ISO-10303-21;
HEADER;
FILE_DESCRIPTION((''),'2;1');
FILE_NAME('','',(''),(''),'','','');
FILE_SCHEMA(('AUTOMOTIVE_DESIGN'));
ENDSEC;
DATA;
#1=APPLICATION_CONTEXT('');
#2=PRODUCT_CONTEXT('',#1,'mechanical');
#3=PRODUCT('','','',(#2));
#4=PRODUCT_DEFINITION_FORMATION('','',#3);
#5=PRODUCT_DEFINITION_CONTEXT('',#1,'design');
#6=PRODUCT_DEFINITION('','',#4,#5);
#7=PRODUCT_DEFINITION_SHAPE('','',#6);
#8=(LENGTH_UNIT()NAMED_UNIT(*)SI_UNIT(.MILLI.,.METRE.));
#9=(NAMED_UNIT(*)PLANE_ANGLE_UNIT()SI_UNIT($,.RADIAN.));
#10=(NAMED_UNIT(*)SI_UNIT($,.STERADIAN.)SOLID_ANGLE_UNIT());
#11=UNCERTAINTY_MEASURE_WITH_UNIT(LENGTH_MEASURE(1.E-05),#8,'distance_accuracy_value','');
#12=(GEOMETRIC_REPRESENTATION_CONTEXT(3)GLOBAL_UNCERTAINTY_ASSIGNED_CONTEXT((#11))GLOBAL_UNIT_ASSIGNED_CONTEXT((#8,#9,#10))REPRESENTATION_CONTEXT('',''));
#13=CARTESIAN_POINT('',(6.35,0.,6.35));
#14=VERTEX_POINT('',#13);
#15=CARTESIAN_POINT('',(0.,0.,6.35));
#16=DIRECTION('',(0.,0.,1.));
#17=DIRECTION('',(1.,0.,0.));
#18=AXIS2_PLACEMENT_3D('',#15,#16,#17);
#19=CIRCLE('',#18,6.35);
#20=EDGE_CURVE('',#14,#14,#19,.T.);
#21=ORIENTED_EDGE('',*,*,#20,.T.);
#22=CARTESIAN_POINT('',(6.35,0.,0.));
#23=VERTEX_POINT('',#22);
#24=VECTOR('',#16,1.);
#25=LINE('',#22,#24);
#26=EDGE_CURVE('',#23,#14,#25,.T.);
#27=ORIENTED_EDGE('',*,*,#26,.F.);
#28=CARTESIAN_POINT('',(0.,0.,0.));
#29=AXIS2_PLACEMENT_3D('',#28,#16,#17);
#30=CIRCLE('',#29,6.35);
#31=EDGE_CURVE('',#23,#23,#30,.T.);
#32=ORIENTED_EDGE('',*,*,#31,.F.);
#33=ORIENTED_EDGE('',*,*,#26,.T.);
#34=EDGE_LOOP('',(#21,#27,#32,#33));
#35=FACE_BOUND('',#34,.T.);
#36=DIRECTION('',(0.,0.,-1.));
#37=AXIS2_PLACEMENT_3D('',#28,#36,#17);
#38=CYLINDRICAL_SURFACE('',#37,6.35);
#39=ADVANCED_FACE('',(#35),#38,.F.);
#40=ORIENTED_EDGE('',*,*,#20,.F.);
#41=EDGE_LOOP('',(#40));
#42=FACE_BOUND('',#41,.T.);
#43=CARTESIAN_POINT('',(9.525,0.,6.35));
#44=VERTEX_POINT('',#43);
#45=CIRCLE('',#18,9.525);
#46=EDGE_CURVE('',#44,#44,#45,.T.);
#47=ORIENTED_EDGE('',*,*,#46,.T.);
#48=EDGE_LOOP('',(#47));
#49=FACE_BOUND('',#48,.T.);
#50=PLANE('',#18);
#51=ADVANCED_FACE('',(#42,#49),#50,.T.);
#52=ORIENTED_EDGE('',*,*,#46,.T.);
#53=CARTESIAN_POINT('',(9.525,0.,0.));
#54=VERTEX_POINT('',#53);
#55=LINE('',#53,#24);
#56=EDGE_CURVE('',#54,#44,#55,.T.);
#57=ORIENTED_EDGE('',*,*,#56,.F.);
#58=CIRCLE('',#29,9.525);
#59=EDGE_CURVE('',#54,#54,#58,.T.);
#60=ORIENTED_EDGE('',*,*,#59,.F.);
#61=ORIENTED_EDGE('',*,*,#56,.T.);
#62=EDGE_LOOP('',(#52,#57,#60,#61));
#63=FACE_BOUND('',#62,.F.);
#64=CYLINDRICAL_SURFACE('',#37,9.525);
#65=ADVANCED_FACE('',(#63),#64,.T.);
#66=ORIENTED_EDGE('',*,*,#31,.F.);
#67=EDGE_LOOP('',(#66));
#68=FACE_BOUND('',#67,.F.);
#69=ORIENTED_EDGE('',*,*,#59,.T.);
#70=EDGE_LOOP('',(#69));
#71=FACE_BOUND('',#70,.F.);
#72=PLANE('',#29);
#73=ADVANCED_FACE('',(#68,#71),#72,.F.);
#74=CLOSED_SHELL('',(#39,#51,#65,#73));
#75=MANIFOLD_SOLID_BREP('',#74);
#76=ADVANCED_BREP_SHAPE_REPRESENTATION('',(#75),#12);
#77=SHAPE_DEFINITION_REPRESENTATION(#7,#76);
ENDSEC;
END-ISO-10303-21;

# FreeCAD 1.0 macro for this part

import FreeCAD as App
import Part
import Sketcher
Q = App.Units.Quantity

doc = App.newDocument("Part")
body = doc.addObject("PartDesign::Body", "Body")

# Sketch on XY plane
sketch1 = doc.addObject("Sketcher::SketchObject", "Sketch")
body.addObject(sketch1)
sketch1.AttachmentSupport = (doc.XY_Plane, [""])
sketch1.MapMode = "FlatFace"
sketch1.addGeometry([
    Part.Circle(App.Vector(0, 0, 0), App.Vector(0, 0, 1), 9.525),
    Part.Circle(App.Vector(0, 0, 0), App.Vector(0, 0, 1), 6.35),
], False)
sketch1.addConstraint([
    Sketcher.Constraint("Coincident", 0, 3, -1, 1),
    Sketcher.Constraint("Coincident", 1, 3, -1, 1),
    Sketcher.Constraint("Diameter", 1, Q("0.5 in")),
    Sketcher.Constraint("Diameter", 0, Q("0.75 in")),
])
pad1 = doc.addObject("PartDesign::Pad", "Pad")
body.addObject(pad1)
pad1.Profile = sketch1
pad1.Length = Q("0.25 in")

doc.recompute()
